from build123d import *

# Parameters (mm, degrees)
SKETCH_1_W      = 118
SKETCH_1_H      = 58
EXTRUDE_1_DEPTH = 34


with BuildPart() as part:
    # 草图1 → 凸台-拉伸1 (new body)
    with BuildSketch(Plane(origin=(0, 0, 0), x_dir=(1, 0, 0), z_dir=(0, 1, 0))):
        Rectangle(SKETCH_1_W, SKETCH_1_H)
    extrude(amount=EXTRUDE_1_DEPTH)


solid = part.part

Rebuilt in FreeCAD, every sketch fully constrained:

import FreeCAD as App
import Part
import Sketcher


def add_polygon(sketch, points):
    """Adds a closed chain of lines whose ends are joined by coincident constraints."""
    first, n = sketch.GeometryCount, len(points)
    for a, b in zip(points, points[1:] + points[:1]):
        sketch.addGeometry(Part.LineSegment(App.Vector(*a, 0), App.Vector(*b, 0)), False)
    for i in range(n):
        sketch.addConstraint(Sketcher.Constraint("Coincident", first + i, 2, first + (i + 1) % n, 1))

doc = App.newDocument("Part")
body = doc.addObject("PartDesign::Body", "Body")

# Sketch on XZ plane
sketch1 = body.newObject("Sketcher::SketchObject", "Sketch")
sketch1.AttachmentSupport = (doc.getObject("XZ_Plane"), [""])
sketch1.MapMode = "FlatFace"
add_polygon(sketch1, [(-59, -29), (-59, 29), (59, 29), (59, -29)])  # lines 0-3
sketch1.addConstraint([
    Sketcher.Constraint("Vertical", 0),
    Sketcher.Constraint("Horizontal", 1),
    Sketcher.Constraint("Vertical", 2),
    Sketcher.Constraint("Horizontal", 3),
    Sketcher.Constraint("Symmetric", 0, 2, 2, 2, -1, 1),
    Sketcher.Constraint("DistanceX", 1, 1, 1, 2, 118.0),
    Sketcher.Constraint("DistanceY", 0, 1, 0, 2, 58.0),
])
pad1 = body.newObject("PartDesign::Pad", "Pad")
pad1.Profile = sketch1
pad1.Length = 34
pad1.Reversed = True

doc.recompute()
